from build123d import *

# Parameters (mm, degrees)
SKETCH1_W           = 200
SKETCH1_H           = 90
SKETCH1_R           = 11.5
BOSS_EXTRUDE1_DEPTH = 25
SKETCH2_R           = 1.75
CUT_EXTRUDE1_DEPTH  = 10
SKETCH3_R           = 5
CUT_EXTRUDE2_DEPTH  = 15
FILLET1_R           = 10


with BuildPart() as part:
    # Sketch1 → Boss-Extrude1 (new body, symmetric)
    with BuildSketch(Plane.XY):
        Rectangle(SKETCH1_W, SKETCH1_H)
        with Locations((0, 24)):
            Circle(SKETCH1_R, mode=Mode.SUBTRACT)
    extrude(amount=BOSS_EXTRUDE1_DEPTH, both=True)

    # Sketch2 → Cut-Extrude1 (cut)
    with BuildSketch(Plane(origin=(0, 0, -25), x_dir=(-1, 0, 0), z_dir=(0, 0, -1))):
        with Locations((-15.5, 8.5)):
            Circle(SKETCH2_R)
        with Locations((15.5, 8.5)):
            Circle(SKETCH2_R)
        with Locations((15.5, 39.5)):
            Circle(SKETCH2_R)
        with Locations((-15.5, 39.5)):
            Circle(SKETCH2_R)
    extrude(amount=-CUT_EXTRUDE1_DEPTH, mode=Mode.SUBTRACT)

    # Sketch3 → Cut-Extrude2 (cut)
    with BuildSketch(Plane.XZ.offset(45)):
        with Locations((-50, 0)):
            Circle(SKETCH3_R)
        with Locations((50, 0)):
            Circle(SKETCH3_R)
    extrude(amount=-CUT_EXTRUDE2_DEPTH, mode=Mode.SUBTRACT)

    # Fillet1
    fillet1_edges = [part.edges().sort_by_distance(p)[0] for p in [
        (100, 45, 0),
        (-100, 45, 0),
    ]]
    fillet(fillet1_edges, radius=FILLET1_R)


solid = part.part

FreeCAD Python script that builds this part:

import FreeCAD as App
import Part
import Sketcher
Q = App.Units.Quantity


def edges_at(feature, points):
    """Names of the edges that pass closest to the given points."""
    edges = feature.Shape.Edges
    near = lambda p: min(range(len(edges)), key=lambda i: edges[i].distToShape(Part.Vertex(*p))[0])
    return sorted({f"Edge{near(p) + 1}" for p in points})

doc = App.newDocument("Part")
params = doc.addObject("Spreadsheet::Sheet", "Params")
for row, (alias, value) in enumerate([
    ("sketch1_diameter", "23 mm"),
    ("sketch1_width", "200 mm"),
    ("sketch1_height", "90 mm"),
    ("pad1_length", "50 mm"),
    ("sketch2_diameter", "3.5 mm"),
    ("pocket1_length", "10 mm"),
    ("sketch3_diameter", "10 mm"),
    ("pocket2_length", "15 mm"),
    ("fillet_radius", "10 mm"),
], start=1):
    params.set(f"A{row}", alias)
    params.set(f"B{row}", "=" + value)
    params.setAlias(f"B{row}", alias)

body = doc.addObject("PartDesign::Body", "Body")

sketch1 = body.newObject("Sketcher::SketchObject", "Sketch")
sketch1.AttachmentSupport = (doc.getObject("XY_Plane"), [""])
sketch1.MapMode = "FlatFace"
sketch1.addGeometry([
    Part.LineSegment(App.Vector(-100, 45, 0), App.Vector(-100, -45, 0)),
    Part.LineSegment(App.Vector(-100, -45, 0), App.Vector(100, -45, 0)),
    Part.LineSegment(App.Vector(100, -45, 0), App.Vector(100, 45, 0)),
    Part.LineSegment(App.Vector(100, 45, 0), App.Vector(-100, 45, 0)),
    Part.Circle(App.Vector(0, 24, 0), App.Vector(0, 0, 1), 11.5),
], False)
sketch1.addConstraint([
    Sketcher.Constraint("Coincident", 0, 2, 1, 1),
    Sketcher.Constraint("Coincident", 1, 2, 2, 1),
    Sketcher.Constraint("Coincident", 2, 2, 3, 1),
    Sketcher.Constraint("Coincident", 3, 2, 0, 1),
    Sketcher.Constraint("Vertical", 0),
    Sketcher.Constraint("Horizontal", 1),
    Sketcher.Constraint("Vertical", 2),
    Sketcher.Constraint("Horizontal", 3),
    Sketcher.Constraint("Symmetric", 0, 2, 2, 2, -1, 1),
    Sketcher.Constraint("PointOnObject", 4, 3, -2),
    Sketcher.Constraint("Diameter", 4, Q("23 mm")),
    Sketcher.Constraint("DistanceX", 1, 1, 1, 2, Q("200 mm")),
    Sketcher.Constraint("DistanceY", 0, 2, 0, 1, Q("90 mm")),
    Sketcher.Constraint("DistanceY", -1, 1, 4, 3, Q("24 mm")),
])
sketch1.setExpression("Constraints[10]", "Params.sketch1_diameter")
sketch1.setExpression("Constraints[11]", "Params.sketch1_width")
sketch1.setExpression("Constraints[12]", "Params.sketch1_height")
pad1 = body.newObject("PartDesign::Pad", "Pad")
pad1.Profile = sketch1
pad1.setExpression("Length", "Params.pad1_length")
pad1.Midplane = True

sketch2 = body.newObject("Sketcher::SketchObject", "Sketch001")
sketch2.AttachmentSupport = (doc.getObject("XY_Plane"), [""])
sketch2.MapMode = "FlatFace"
sketch2.AttachmentOffset = App.Placement(App.Vector(0, 0, -25), App.Rotation())
sketch2.addGeometry([
    Part.Circle(App.Vector(15.5, 8.5, 0), App.Vector(0, 0, 1), 1.75),
    Part.Circle(App.Vector(-15.5, 8.5, 0), App.Vector(0, 0, 1), 1.75),
    Part.Circle(App.Vector(-15.5, 39.5, 0), App.Vector(0, 0, 1), 1.75),
    Part.Circle(App.Vector(15.5, 39.5, 0), App.Vector(0, 0, 1), 1.75),
], False)
sketch2.addConstraint([
    Sketcher.Constraint("Equal", 0, 1),
    Sketcher.Constraint("Equal", 1, 2),
    Sketcher.Constraint("Equal", 2, 3),
    Sketcher.Constraint("Symmetric", 0, 3, 1, 3, -2),
    Sketcher.Constraint("Symmetric", 2, 3, 3, 3, -2),
    Sketcher.Constraint("Vertical", 1, 3, 2, 3),
    Sketcher.Constraint("Diameter", 0, Q("3.5 mm")),
    Sketcher.Constraint("DistanceX", 1, 3, 0, 3, Q("31 mm")),
    Sketcher.Constraint("DistanceY", 1, 3, 2, 3, Q("31 mm")),
    Sketcher.Constraint("DistanceY", -1, 1, 0, 3, Q("8.5 mm")),
])
sketch2.setExpression("Constraints[6]", "Params.sketch2_diameter")
pocket1 = body.newObject("PartDesign::Pocket", "Pocket")
pocket1.Profile = sketch2
pocket1.setExpression("Length", "Params.pocket1_length")
pocket1.Reversed = True

sketch3 = body.newObject("Sketcher::SketchObject", "Sketch002")
sketch3.AttachmentSupport = (doc.getObject("XZ_Plane"), [""])
sketch3.MapMode = "FlatFace"
sketch3.AttachmentOffset = App.Placement(App.Vector(0, 0, 45), App.Rotation())
sketch3.addGeometry([
    Part.Circle(App.Vector(-50, 0, 0), App.Vector(0, 0, 1), 5),
    Part.Circle(App.Vector(50, 0, 0), App.Vector(0, 0, 1), 5),
], False)
sketch3.addConstraint([
    Sketcher.Constraint("Equal", 0, 1),
    Sketcher.Constraint("Symmetric", 0, 3, 1, 3, -1, 1),
    Sketcher.Constraint("PointOnObject", 0, 3, -1),
    Sketcher.Constraint("Diameter", 0, Q("10 mm")),
    Sketcher.Constraint("DistanceX", 0, 3, -1, 1, Q("50 mm")),
])
sketch3.setExpression("Constraints[3]", "Params.sketch3_diameter")
pocket2 = body.newObject("PartDesign::Pocket", "Pocket001")
pocket2.Profile = sketch3
pocket2.setExpression("Length", "Params.pocket2_length")
doc.recompute()

fillet = body.newObject("PartDesign::Fillet", "Fillet")
fillet.Base = (pocket2, edges_at(pocket2, [(100, 45, 0), (-100, 45, 0)]))
fillet.setExpression("Radius", "Params.fillet_radius")

doc.recompute()
